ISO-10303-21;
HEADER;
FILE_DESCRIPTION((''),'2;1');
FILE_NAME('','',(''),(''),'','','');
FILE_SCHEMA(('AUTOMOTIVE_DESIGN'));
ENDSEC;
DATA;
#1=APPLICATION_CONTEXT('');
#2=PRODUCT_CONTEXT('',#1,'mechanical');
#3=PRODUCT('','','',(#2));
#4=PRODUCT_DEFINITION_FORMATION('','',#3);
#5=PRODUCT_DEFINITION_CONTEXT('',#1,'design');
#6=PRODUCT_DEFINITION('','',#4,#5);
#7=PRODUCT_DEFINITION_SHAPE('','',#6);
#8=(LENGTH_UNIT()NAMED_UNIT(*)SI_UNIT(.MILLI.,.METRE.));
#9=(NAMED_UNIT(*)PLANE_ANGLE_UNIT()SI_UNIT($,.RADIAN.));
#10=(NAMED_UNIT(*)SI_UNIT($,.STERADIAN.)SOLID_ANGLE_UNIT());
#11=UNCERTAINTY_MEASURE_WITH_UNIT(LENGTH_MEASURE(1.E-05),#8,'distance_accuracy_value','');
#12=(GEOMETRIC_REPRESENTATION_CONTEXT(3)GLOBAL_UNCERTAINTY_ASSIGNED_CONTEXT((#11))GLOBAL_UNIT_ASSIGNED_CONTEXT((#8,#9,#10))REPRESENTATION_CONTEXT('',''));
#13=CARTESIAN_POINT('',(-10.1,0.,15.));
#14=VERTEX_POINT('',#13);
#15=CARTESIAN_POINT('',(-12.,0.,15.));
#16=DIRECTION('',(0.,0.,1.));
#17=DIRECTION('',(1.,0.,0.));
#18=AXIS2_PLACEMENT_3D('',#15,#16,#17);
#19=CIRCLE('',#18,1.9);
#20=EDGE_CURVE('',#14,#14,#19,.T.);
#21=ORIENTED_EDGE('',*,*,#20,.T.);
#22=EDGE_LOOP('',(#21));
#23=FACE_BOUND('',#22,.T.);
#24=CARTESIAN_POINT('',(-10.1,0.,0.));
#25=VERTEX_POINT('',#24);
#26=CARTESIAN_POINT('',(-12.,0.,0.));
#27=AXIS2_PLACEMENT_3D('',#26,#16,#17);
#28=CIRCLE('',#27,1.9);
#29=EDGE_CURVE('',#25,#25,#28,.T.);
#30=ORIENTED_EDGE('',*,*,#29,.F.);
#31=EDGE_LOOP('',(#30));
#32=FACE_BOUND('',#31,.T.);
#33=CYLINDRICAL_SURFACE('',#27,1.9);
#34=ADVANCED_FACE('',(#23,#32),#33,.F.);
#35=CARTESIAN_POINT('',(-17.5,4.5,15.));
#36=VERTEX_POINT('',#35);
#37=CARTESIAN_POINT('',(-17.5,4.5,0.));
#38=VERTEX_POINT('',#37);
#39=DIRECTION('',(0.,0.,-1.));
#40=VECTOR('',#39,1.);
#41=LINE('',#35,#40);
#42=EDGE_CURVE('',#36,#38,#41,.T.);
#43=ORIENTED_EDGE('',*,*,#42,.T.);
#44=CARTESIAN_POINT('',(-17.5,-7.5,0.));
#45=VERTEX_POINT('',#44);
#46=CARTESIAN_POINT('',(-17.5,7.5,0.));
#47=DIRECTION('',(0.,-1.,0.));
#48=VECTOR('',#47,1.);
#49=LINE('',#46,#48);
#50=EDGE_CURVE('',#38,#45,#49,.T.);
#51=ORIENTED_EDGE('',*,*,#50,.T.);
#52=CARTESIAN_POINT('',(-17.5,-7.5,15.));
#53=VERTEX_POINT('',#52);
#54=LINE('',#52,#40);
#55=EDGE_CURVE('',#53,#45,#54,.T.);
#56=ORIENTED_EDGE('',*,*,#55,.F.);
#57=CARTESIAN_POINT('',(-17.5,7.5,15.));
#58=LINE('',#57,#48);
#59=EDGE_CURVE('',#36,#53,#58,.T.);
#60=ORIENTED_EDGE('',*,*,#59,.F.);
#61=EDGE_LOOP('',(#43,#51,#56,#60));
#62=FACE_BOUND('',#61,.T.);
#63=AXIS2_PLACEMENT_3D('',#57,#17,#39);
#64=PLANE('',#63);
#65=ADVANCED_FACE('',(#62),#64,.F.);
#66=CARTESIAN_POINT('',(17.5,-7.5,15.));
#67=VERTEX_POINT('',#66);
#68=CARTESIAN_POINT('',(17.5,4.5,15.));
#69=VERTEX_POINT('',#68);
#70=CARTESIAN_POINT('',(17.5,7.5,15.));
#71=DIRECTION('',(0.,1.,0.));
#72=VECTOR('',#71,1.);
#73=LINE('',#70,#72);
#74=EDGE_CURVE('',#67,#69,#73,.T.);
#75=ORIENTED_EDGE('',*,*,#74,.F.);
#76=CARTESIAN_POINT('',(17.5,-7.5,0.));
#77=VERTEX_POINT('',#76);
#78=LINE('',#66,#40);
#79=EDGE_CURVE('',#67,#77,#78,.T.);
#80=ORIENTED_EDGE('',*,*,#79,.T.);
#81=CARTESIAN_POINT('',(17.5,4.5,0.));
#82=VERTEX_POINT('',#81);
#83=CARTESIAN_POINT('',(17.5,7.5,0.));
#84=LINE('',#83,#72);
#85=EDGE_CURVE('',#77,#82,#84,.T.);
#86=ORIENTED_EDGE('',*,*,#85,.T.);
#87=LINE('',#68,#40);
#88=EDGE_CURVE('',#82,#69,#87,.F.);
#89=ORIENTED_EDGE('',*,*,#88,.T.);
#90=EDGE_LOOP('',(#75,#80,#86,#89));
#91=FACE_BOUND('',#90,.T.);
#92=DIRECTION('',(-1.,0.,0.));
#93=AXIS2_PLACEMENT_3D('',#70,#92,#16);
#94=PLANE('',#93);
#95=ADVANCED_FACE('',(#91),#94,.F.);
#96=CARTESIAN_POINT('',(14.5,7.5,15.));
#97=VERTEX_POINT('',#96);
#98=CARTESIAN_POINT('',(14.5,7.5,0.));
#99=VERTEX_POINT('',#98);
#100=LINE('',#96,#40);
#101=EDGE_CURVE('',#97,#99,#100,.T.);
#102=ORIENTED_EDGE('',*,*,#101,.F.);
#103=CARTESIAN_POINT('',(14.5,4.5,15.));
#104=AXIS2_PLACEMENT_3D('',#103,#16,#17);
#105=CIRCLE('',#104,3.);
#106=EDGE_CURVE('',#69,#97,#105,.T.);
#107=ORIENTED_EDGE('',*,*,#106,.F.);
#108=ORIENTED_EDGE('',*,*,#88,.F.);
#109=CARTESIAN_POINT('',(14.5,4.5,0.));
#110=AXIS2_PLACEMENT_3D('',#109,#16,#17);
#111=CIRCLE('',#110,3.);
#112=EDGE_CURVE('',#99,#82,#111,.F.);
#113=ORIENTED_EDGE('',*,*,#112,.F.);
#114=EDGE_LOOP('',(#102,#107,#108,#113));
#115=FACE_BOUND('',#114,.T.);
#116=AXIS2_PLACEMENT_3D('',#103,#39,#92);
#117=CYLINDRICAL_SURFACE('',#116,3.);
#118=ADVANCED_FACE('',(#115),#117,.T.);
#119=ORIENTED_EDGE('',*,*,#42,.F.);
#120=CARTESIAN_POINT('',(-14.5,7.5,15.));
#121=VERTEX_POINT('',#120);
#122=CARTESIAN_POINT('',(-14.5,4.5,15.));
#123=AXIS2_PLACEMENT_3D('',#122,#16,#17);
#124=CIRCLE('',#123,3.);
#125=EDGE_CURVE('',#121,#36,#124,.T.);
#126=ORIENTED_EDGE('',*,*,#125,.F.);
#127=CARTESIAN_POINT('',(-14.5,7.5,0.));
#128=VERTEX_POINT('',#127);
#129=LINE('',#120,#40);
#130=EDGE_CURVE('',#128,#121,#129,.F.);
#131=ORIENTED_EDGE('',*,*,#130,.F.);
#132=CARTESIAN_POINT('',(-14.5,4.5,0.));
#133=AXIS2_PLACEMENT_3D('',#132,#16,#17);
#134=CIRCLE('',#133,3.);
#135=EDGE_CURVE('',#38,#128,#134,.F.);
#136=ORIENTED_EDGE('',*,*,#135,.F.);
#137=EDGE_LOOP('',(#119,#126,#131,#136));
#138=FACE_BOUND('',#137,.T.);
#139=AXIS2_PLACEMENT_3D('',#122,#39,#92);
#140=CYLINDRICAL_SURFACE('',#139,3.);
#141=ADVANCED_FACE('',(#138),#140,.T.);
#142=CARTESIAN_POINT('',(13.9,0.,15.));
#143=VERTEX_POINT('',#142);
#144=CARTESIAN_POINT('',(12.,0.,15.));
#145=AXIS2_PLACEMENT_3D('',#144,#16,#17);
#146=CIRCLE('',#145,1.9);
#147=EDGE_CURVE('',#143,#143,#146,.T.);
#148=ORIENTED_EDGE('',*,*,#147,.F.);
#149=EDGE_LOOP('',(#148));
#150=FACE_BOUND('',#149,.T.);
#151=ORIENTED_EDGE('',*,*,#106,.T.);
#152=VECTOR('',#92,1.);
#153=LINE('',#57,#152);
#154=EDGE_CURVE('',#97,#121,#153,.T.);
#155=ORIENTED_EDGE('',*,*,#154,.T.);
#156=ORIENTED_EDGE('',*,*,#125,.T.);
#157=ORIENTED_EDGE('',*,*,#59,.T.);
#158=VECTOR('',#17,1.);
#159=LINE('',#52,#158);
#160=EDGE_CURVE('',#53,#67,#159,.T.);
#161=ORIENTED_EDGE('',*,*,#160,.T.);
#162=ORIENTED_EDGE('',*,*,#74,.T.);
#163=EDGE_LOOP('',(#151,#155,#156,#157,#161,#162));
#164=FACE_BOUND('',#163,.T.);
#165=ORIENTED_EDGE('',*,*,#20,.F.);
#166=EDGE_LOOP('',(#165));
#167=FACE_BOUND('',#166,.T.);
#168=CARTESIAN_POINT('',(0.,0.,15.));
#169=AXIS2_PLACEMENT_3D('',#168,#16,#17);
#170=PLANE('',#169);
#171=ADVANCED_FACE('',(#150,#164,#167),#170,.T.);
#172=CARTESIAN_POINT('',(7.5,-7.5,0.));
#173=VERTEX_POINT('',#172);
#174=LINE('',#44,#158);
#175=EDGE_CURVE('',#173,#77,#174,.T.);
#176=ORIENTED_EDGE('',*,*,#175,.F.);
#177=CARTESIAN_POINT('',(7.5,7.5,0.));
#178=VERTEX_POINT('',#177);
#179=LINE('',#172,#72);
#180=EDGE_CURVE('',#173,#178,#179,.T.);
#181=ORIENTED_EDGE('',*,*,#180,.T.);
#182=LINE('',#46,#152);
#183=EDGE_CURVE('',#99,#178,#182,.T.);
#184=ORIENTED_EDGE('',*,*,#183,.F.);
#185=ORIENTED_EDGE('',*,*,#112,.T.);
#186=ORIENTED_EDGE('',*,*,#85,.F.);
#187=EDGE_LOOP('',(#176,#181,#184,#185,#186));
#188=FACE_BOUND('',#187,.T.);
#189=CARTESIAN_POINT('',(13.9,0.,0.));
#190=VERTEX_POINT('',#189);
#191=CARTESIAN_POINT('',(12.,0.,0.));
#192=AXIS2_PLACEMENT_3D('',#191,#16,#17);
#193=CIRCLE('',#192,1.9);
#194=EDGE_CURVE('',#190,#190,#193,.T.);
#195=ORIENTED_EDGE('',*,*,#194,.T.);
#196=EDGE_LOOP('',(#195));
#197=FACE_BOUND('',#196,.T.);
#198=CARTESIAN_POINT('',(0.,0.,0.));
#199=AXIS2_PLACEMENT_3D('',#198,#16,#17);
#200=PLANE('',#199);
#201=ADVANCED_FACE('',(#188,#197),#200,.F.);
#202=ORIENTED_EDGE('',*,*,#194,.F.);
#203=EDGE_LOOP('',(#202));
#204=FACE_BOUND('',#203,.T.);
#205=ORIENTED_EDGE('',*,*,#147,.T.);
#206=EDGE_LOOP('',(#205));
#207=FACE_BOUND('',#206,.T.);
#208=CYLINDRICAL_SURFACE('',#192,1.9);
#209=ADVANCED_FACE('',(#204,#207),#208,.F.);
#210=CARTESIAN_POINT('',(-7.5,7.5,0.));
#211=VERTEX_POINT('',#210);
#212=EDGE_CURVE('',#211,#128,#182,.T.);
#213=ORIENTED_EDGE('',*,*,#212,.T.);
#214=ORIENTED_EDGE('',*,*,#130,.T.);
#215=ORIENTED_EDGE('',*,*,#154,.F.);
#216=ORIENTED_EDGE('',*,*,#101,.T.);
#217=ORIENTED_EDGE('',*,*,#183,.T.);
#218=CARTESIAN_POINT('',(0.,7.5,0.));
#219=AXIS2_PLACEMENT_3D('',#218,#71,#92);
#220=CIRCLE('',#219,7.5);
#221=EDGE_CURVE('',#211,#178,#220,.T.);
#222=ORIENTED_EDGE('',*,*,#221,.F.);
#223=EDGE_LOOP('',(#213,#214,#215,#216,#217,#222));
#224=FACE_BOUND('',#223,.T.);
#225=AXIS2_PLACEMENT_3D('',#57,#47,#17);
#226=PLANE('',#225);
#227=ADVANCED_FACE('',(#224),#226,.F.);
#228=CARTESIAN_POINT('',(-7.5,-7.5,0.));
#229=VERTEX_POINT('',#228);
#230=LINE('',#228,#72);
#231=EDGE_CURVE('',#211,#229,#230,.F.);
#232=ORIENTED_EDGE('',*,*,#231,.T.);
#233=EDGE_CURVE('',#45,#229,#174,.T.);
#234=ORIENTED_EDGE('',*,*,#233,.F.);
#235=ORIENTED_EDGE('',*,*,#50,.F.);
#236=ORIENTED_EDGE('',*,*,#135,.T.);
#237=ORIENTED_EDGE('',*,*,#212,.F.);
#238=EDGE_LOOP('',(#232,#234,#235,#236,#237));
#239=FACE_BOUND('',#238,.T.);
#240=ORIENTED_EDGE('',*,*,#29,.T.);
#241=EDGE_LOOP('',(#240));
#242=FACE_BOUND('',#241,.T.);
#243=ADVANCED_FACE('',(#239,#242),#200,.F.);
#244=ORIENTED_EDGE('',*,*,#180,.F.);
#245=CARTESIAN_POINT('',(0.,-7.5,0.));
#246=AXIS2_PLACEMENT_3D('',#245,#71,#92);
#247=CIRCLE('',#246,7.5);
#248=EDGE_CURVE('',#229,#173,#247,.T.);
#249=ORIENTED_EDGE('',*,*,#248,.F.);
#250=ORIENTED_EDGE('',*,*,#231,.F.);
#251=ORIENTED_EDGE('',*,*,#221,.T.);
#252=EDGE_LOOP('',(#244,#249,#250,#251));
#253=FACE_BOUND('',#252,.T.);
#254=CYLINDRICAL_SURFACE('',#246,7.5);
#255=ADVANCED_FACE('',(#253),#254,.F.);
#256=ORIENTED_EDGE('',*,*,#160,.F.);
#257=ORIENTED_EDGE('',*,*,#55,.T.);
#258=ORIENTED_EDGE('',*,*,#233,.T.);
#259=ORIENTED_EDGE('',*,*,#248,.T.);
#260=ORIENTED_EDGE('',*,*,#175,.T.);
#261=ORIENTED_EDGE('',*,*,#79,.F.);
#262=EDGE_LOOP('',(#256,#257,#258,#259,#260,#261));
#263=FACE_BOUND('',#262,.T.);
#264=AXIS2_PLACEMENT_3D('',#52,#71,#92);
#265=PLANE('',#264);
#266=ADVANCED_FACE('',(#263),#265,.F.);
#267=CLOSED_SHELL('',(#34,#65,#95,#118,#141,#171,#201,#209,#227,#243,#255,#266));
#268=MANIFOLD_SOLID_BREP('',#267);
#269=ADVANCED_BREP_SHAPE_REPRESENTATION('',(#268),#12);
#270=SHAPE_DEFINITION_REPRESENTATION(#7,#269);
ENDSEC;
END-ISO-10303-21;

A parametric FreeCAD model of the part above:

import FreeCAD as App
import Part
import Sketcher
from FreeCAD import Vector
Q = App.Units.Quantity


def edges_at(feature, points):
    """Names of the edges that pass closest to the given points."""
    edges = feature.Shape.Edges
    near = lambda p: min(range(len(edges)), key=lambda i: edges[i].distToShape(Part.Vertex(*p))[0])
    return sorted({f"Edge{near(p) + 1}" for p in points})


def add_polygon(sketch, points):
    """Adds a closed chain of lines whose ends are joined by coincident constraints."""
    first, n = sketch.GeometryCount, len(points)
    for a, b in zip(points, points[1:] + points[:1]):
        sketch.addGeometry(Part.LineSegment(App.Vector(*a, 0), App.Vector(*b, 0)), False)
    for i in range(n):
        sketch.addConstraint(Sketcher.Constraint("Coincident", first + i, 2, first + (i + 1) % n, 1))

doc = App.newDocument("Part")
body = doc.addObject("PartDesign::Body", "Body")

sketch1 = body.newObject("Sketcher::SketchObject", "Sketch")
sketch1.AttachmentSupport = (doc.getObject("XY_Plane"), [""])
sketch1.MapMode = "FlatFace"
add_polygon(sketch1, [(-18, 8), (-18, -8), (18, -8), (18, 8)])
sketch1.addConstraint([
    Sketcher.Constraint("Vertical", 0),
    Sketcher.Constraint("Horizontal", 1),
    Sketcher.Constraint("Vertical", 2),
    Sketcher.Constraint("Horizontal", 3),
    Sketcher.Constraint("Symmetric", 0, 2, 2, 2, -1, 1),
    Sketcher.Constraint("DistanceX", 1, 1, 1, 2, Q("35 mm")),
    Sketcher.Constraint("DistanceY", 0, 2, 0, 1, Q("15 mm")),
])
pad1 = body.newObject("PartDesign::Pad", "Pad")
pad1.Profile = sketch1
pad1.Length = 15

sketch2 = body.newObject("Sketcher::SketchObject", "Sketch001")
sketch2.AttachmentSupport = (doc.getObject("XY_Plane"), [""])
sketch2.MapMode = "FlatFace"
sketch2.AttachmentOffset = App.Placement(Vector(0, 0, 15), App.Rotation())
sketch2.addGeometry([
    Part.Circle(Vector(-12, 0, 0), Vector(0, 0, 1), 1.9),
    Part.Circle(Vector(12, 0, 0), Vector(0, 0, 1), 1.9),
], False)
sketch2.addConstraint([
    Sketcher.Constraint("Equal", 0, 1),
    Sketcher.Constraint("Symmetric", 0, 3, 1, 3, -1, 1),
    Sketcher.Constraint("PointOnObject", 0, 3, -1),
    Sketcher.Constraint("Diameter", 0, Q("3.8 mm")),
    Sketcher.Constraint("DistanceX", 0, 3, -1, 1, Q("12 mm")),
])
pocket1 = body.newObject("PartDesign::Pocket", "Pocket")
pocket1.Profile = sketch2
pocket1.Length = 15
doc.recompute()

fillet = body.newObject("PartDesign::Fillet", "Fillet")
fillet.Base = (pocket1, edges_at(pocket1, [(-17.5, 7.5, 7.5), (17.5, 7.5, 7.5)]))
fillet.Radius = 3

sketch3 = body.newObject("Sketcher::SketchObject", "Sketch002")
sketch3.AttachmentSupport = (doc.getObject("XZ_Plane"), [""])
sketch3.MapMode = "FlatFace"
sketch3.AttachmentOffset = App.Placement(Vector(0, 0, -7.5), App.Rotation())
sketch3.addGeometry(Part.Circle(Vector(0, 0, 0), Vector(0, 0, 1), 8), False)
sketch3.addConstraint([
    Sketcher.Constraint("Coincident", 0, 3, -1, 1),
    Sketcher.Constraint("Diameter", 0, Q("15 mm")),
])
pocket2 = body.newObject("PartDesign::Pocket", "Pocket001")
pocket2.Profile = sketch3
pocket2.Type = "ThroughAll"
pocket2.Reversed = True

doc.recompute()
